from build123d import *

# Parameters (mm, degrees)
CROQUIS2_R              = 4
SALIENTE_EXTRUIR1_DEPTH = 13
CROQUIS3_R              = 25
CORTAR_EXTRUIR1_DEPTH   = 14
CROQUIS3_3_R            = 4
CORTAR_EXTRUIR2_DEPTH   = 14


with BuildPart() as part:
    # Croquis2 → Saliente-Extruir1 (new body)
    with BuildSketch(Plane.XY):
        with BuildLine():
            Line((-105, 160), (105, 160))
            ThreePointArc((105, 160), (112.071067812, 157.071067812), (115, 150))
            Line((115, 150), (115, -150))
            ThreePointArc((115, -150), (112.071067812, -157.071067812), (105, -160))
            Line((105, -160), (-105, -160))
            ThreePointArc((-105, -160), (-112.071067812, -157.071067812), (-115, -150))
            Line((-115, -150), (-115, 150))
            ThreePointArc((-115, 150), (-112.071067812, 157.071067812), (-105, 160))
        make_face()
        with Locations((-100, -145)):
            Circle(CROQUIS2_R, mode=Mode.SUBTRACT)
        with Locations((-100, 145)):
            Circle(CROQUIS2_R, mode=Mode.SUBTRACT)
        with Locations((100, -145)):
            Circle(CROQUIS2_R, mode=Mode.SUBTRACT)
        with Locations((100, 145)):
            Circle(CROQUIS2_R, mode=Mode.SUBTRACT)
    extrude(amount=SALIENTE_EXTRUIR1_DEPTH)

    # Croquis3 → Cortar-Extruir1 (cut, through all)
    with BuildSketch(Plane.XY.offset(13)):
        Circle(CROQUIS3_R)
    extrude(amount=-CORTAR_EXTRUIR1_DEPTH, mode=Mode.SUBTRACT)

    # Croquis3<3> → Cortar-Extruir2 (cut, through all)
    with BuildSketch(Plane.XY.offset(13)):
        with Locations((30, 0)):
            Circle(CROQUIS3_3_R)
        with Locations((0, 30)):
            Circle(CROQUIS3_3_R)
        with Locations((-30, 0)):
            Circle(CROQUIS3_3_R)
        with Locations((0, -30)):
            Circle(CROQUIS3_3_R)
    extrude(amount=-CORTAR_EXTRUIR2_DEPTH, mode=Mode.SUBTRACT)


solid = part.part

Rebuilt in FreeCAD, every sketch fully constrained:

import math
import FreeCAD as App
import Part
import Sketcher

V = App.Vector

doc = App.newDocument("Part")
params = doc.addObject("Spreadsheet::Sheet", "Params")
for row, (alias, value) in enumerate([
    ("sketch1_diameter", "8 mm"),
    ("sketch1_radius", "10 mm"),
    ("sketch1_width", "210 mm"),
    ("sketch1_height", "300 mm"),
    ("pad1_length", "13 mm"),
    ("sketch2_diameter", "50 mm"),
    ("sketch3_diameter", "8 mm"),
], start=1):
    params.set(f"A{row}", alias)
    params.set(f"B{row}", "=" + value)
    params.setAlias(f"B{row}", alias)

body = doc.addObject("PartDesign::Body", "Body")

sketch1 = doc.addObject("Sketcher::SketchObject", "Sketch")
body.addObject(sketch1)
sketch1.AttachmentSupport = (doc.XY_Plane, [""])
sketch1.MapMode = "FlatFace"
sketch1.addGeometry([
    Part.LineSegment(V(105, 160, 0), V(-105, 160, 0)),
    Part.ArcOfCircle(Part.Circle(V(-105, 150, 0), V(0, 0, 1), 10), math.radians(90), math.radians(180)),
    Part.LineSegment(V(-115, 150, 0), V(-115, -150, 0)),
    Part.ArcOfCircle(Part.Circle(V(-105, -150, 0), V(0, 0, 1), 10), math.radians(180), math.radians(270)),
    Part.LineSegment(V(-105, -160, 0), V(105, -160, 0)),
    Part.ArcOfCircle(Part.Circle(V(105, -150, 0), V(0, 0, 1), 10), math.radians(-90), math.radians(0)),
    Part.LineSegment(V(115, -150, 0), V(115, 150, 0)),
    Part.ArcOfCircle(Part.Circle(V(105, 150, 0), V(0, 0, 1), 10), math.radians(0), math.radians(90)),
    Part.Circle(V(100, -145, 0), V(0, 0, 1), 4),
    Part.Circle(V(-100, -145, 0), V(0, 0, 1), 4),
    Part.Circle(V(100, 145, 0), V(0, 0, 1), 4),
    Part.Circle(V(-100, 145, 0), V(0, 0, 1), 4),
], False)
sketch1.addConstraint([
    Sketcher.Constraint("Tangent", 0, 2, 1, 1),
    Sketcher.Constraint("Tangent", 1, 2, 2, 1),
    Sketcher.Constraint("Tangent", 2, 2, 3, 1),
    Sketcher.Constraint("Tangent", 3, 2, 4, 1),
    Sketcher.Constraint("Tangent", 4, 2, 5, 1),
    Sketcher.Constraint("Tangent", 5, 2, 6, 1),
    Sketcher.Constraint("Tangent", 6, 2, 7, 1),
    Sketcher.Constraint("Tangent", 7, 2, 0, 1),
    Sketcher.Constraint("Horizontal", 0),
    Sketcher.Constraint("Vertical", 2),
    Sketcher.Constraint("Horizontal", 4),
    Sketcher.Constraint("Vertical", 6),
    Sketcher.Constraint("Equal", 1, 3),
    Sketcher.Constraint("Equal", 3, 5),
    Sketcher.Constraint("Equal", 5, 7),
    Sketcher.Constraint("Equal", 8, 9),
    Sketcher.Constraint("Equal", 9, 10),
    Sketcher.Constraint("Equal", 10, 11),
    Sketcher.Constraint("Symmetric", 1, 3, 5, 3, -1, 1),
    Sketcher.Constraint("Symmetric", 9, 3, 10, 3, -1, 1),
    Sketcher.Constraint("Symmetric", 8, 3, 11, 3, -1, 1),
    Sketcher.Constraint("Symmetric", 8, 3, 9, 3, -2),
    Sketcher.Constraint("Diameter", 8, 8.0),
    Sketcher.Constraint("Radius", 1, 10.0),
    Sketcher.Constraint("DistanceX", 0, 2, 0, 1, 210.0),
    Sketcher.Constraint("DistanceY", 2, 2, 2, 1, 300.0),
    Sketcher.Constraint("DistanceX", -1, 1, 8, 3, 100.0),
    Sketcher.Constraint("DistanceY", 8, 3, -1, 1, 145.0),
])
sketch1.setExpression("Constraints[22]", "Params.sketch1_diameter")
sketch1.setExpression("Constraints[23]", "Params.sketch1_radius")
sketch1.setExpression("Constraints[24]", "Params.sketch1_width")
sketch1.setExpression("Constraints[25]", "Params.sketch1_height")
pad1 = doc.addObject("PartDesign::Pad", "Pad")
body.addObject(pad1)
pad1.Profile = sketch1
pad1.setExpression("Length", "Params.pad1_length")

sketch2 = doc.addObject("Sketcher::SketchObject", "Sketch001")
body.addObject(sketch2)
sketch2.AttachmentSupport = (doc.XY_Plane, [""])
sketch2.MapMode = "FlatFace"
sketch2.AttachmentOffset = App.Placement(V(0, 0, 13), App.Rotation())
sketch2.addGeometry(Part.Circle(V(0, 0, 0), V(0, 0, 1), 25), False)
sketch2.addConstraint([
    Sketcher.Constraint("Coincident", 0, 3, -1, 1),
    Sketcher.Constraint("Diameter", 0, 50.0),
])
sketch2.setExpression("Constraints[1]", "Params.sketch2_diameter")
pocket1 = doc.addObject("PartDesign::Pocket", "Pocket")
body.addObject(pocket1)
pocket1.Profile = sketch2
pocket1.Type = "ThroughAll"

sketch3 = doc.addObject("Sketcher::SketchObject", "Sketch002")
body.addObject(sketch3)
sketch3.AttachmentSupport = (doc.XY_Plane, [""])
sketch3.MapMode = "FlatFace"
sketch3.AttachmentOffset = App.Placement(V(0, 0, 13), App.Rotation())
sketch3.addGeometry([
    Part.Circle(V(30, 0, 0), V(0, 0, 1), 4),
    Part.Circle(V(0, 30, 0), V(0, 0, 1), 4),
    Part.Circle(V(-30, 0, 0), V(0, 0, 1), 4),
    Part.Circle(V(0, -30, 0), V(0, 0, 1), 4),
], False)
sketch3.addConstraint([
    Sketcher.Constraint("Equal", 0, 1),
    Sketcher.Constraint("Equal", 1, 2),
    Sketcher.Constraint("Equal", 2, 3),
    Sketcher.Constraint("Symmetric", 0, 3, 2, 3, -1, 1),
    Sketcher.Constraint("Symmetric", 1, 3, 3, 3, -1, 1),
    Sketcher.Constraint("PointOnObject", 0, 3, -1),
    Sketcher.Constraint("PointOnObject", 1, 3, -2),
    Sketcher.Constraint("Diameter", 0, 8.0),
    Sketcher.Constraint("DistanceX", -1, 1, 0, 3, 30.0),
    Sketcher.Constraint("DistanceY", -1, 1, 1, 3, 30.0),
])
sketch3.setExpression("Constraints[7]", "Params.sketch3_diameter")
pocket2 = doc.addObject("PartDesign::Pocket", "Pocket001")
body.addObject(pocket2)
pocket2.Profile = sketch3
pocket2.Type = "ThroughAll"

doc.recompute()
